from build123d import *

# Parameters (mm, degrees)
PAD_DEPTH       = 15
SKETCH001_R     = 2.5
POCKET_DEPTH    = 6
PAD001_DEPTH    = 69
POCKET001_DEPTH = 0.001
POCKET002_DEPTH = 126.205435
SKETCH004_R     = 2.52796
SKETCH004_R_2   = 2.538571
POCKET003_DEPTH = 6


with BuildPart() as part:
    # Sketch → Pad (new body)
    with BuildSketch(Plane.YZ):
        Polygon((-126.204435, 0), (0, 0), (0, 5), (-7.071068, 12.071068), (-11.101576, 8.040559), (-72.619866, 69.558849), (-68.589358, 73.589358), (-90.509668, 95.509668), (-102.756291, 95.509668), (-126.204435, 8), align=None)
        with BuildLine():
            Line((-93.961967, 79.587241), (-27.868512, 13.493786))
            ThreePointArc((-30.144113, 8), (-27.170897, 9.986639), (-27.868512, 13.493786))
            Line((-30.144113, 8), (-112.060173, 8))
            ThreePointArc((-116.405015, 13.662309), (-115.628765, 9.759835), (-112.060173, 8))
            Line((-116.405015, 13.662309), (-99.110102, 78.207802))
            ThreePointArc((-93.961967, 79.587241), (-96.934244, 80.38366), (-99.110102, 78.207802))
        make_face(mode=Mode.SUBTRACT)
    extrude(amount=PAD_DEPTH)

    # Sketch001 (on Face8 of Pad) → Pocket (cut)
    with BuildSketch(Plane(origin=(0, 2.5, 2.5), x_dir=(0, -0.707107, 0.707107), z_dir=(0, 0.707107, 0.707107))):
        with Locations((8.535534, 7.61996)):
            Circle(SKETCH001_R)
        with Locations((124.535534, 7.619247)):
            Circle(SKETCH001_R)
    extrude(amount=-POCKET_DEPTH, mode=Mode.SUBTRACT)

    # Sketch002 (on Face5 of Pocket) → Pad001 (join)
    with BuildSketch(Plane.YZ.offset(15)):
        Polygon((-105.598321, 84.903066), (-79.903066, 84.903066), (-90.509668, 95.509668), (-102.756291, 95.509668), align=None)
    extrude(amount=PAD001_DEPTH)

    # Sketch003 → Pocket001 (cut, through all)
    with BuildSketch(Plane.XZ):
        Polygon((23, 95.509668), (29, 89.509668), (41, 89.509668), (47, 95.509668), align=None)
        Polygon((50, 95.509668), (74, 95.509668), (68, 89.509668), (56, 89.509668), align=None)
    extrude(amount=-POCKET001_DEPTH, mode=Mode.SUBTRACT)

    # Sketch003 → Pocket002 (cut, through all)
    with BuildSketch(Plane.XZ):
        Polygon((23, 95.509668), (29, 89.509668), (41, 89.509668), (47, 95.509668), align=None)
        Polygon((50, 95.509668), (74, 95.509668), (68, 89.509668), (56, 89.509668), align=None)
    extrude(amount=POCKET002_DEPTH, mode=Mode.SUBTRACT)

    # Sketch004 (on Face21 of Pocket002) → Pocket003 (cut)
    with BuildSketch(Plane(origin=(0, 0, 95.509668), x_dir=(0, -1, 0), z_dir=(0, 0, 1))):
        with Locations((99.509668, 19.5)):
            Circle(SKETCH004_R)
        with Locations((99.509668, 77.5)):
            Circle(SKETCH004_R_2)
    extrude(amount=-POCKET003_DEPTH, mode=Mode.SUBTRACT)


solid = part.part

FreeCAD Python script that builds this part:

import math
import FreeCAD as App
import Part
import Sketcher
from FreeCAD import Vector
Q = App.Units.Quantity


def add_polygon(sketch, points):
    """Adds a closed chain of lines whose ends are joined by coincident constraints."""
    first, n = sketch.GeometryCount, len(points)
    for a, b in zip(points, points[1:] + points[:1]):
        sketch.addGeometry(Part.LineSegment(App.Vector(*a, 0), App.Vector(*b, 0)), False)
    for i in range(n):
        sketch.addConstraint(Sketcher.Constraint("Coincident", first + i, 2, first + (i + 1) % n, 1))

doc = App.newDocument("Part")
body = doc.addObject("PartDesign::Body", "Body")

# Sketch on YZ plane
sketch1 = body.newObject("Sketcher::SketchObject", "Sketch")
sketch1.AttachmentSupport = (doc.getObject("YZ_Plane"), [""])
sketch1.MapMode = "FlatFace"
add_polygon(sketch1, [(-126.204435, 0), (0, 0), (0, 5), (-7.071068, 12.071068), (-11.101576, 8.040559), (-72.619866, 69.558849), (-68.589358, 73.589358), (-90.509668, 95.509668), (-102.756291, 95.509668), (-126.204435, 8)])  # lines 0-9
sketch1.addGeometry(Part.ArcOfCircle(Part.Circle(Vector(-96.137825, 77.411383, 0), Vector(0, 0, 1), 3.077128), math.radians(45.000008), math.radians(165)), False)  # 10
sketch1.addGeometry(Part.LineSegment(Vector(-93.961967, 79.587241, 0), Vector(-27.868512, 13.493786, 0)), False)  # 11
sketch1.addGeometry(Part.ArcOfCircle(Part.Circle(Vector(-30.144112, 11.218185, 0), Vector(0, 0, 1), 3.218185), math.radians(-90.00001), math.radians(45.000004)), False)  # 12
sketch1.addGeometry(Part.LineSegment(Vector(-30.144113, 8, 0), Vector(-112.060173, 8, 0)), False)  # 13
sketch1.addGeometry(Part.ArcOfCircle(Part.Circle(Vector(-112.060173, 12.498112, 0), Vector(0, 0, 1), 4.498112), math.radians(164.999994), math.radians(269.999999)), False)  # 14
sketch1.addGeometry(Part.LineSegment(Vector(-116.405015, 13.662309, 0), Vector(-99.110102, 78.207802, 0)), False)  # 15
sketch1.addConstraint([
    Sketcher.Constraint("Tangent", 10, 1, 11, 1),
    Sketcher.Constraint("Tangent", 11, 2, 12, 2),
    Sketcher.Constraint("Tangent", 12, 1, 13, 1),
    Sketcher.Constraint("Tangent", 13, 2, 14, 2),
    Sketcher.Constraint("Tangent", 14, 1, 15, 1),
    Sketcher.Constraint("Tangent", 15, 2, 10, 2),
    Sketcher.Constraint("Horizontal", 0),
    Sketcher.Constraint("Vertical", 1),
    Sketcher.Constraint("Horizontal", 7),
    Sketcher.Constraint("Vertical", 9),
    Sketcher.Constraint("Horizontal", 13),
    Sketcher.Constraint("Coincident", 0, 2, -1, 1),
    Sketcher.Constraint("Perpendicular", 2, 3),
    Sketcher.Constraint("Perpendicular", 3, 4),
    Sketcher.Constraint("Perpendicular", 4, 5),
    Sketcher.Constraint("Perpendicular", 5, 6),
    Sketcher.Constraint("Parallel", 6, 11),
    Sketcher.Constraint("Parallel", 8, 15),
    Sketcher.Constraint("Horizontal", 8, 2, 12, 1),
    Sketcher.Constraint("Equal", 3, 5),
    Sketcher.Constraint("DistanceY", 1, 1, 1, 2, Q("5 mm")),
    Sketcher.Constraint("DistanceY", 9, 2, 9, 1, Q("8 mm")),
    Sketcher.Constraint("Angle", 2, Q("135 deg")),
    Sketcher.Constraint("Angle", 8, Q("-104.999999 deg")),
    Sketcher.Constraint("Distance", 2, Q("10 mm")),
    Sketcher.Constraint("Distance", 4, Q("87 mm")),
    Sketcher.Constraint("Distance", 6, Q("31 mm")),
    Sketcher.Constraint("Distance", 3, Q("5.7 mm")),
    Sketcher.Constraint("Radius", 14, Q("4.498112 mm")),
    Sketcher.Constraint("Radius", 10, Q("3.077128 mm")),
    Sketcher.Constraint("Radius", 12, Q("3.218185 mm")),
    Sketcher.Constraint("DistanceX", 13, 2, 13, 1, Q("81.91606 mm")),
    Sketcher.Constraint("DistanceX", 15, 2, -1, 1, Q("99.110102 mm")),
    Sketcher.Constraint("DistanceX", 0, 1, 0, 2, Q("126.204435 mm")),
])
pad1 = body.newObject("PartDesign::Pad", "Pad")
pad1.Profile = sketch1
pad1.Length = 15

# Sketch on an angled plane
sketch2 = body.newObject("Sketcher::SketchObject", "Sketch001")
sketch2.Placement = App.Placement(Vector(0, 2.5, 2.5), App.Rotation(Vector(0, -0.707106781, 0.707106781), Vector(0.999999999, 0, 0), Vector(0, 0.707106781, 0.707106781), "ZXY"))
sketch2.addGeometry([
    Part.Circle(Vector(8.535534, 7.61996, 0), Vector(0, 0, 1), 2.5),
    Part.Circle(Vector(124.535534, 7.619247, 0), Vector(0, 0, 1), 2.5),
], False)
sketch2.addConstraint([
    Sketcher.Constraint("Equal", 0, 1),
    Sketcher.Constraint("Diameter", 0, Q("5 mm")),
    Sketcher.Constraint("DistanceX", 0, 3, 1, 3, Q("116 mm")),
    Sketcher.Constraint("DistanceY", -1, 1, 0, 3, Q("7.61996 mm")),
    Sketcher.Constraint("DistanceX", -1, 1, 0, 3, Q("8.535534 mm")),
    Sketcher.Constraint("DistanceY", -1, 1, 1, 3, Q("7.619247 mm")),
])
pocket1 = body.newObject("PartDesign::Pocket", "Pocket")
pocket1.Profile = sketch2
pocket1.Length = 6

# Sketch on YZ plane
sketch3 = body.newObject("Sketcher::SketchObject", "Sketch002")
sketch3.AttachmentSupport = (doc.getObject("YZ_Plane"), [""])
sketch3.MapMode = "FlatFace"
sketch3.AttachmentOffset = App.Placement(Vector(0, 0, 15), App.Rotation())
add_polygon(sketch3, [(-105.598321, 84.903066), (-79.903066, 84.903066), (-90.509668, 95.509668), (-102.756291, 95.509668)])  # lines 0-3
sketch3.addConstraint([
    Sketcher.Constraint("Horizontal", 0),
    Sketcher.Constraint("Horizontal", 2),
    Sketcher.Constraint("Angle", 1, Q("135 deg")),
    Sketcher.Constraint("Angle", 3, Q("-104.999998 deg")),
    Sketcher.Constraint("Distance", 1, Q("15 mm")),
    Sketcher.Constraint("DistanceX", 0, 1, 0, 2, Q("25.695255 mm")),
    Sketcher.Constraint("DistanceX", 1, 2, -1, 1, Q("90.509668 mm")),
    Sketcher.Constraint("DistanceY", -1, 1, 1, 2, Q("95.509668 mm")),
])
pad2 = body.newObject("PartDesign::Pad", "Pad001")
pad2.Profile = sketch3
pad2.Length = 69

# Sketch on XZ plane
sketch4 = body.newObject("Sketcher::SketchObject", "Sketch003")
sketch4.AttachmentSupport = (doc.getObject("XZ_Plane"), [""])
sketch4.MapMode = "FlatFace"
add_polygon(sketch4, [(23, 95.509668), (29, 89.509668), (41, 89.509668), (47, 95.509668)])  # lines 0-3
add_polygon(sketch4, [(74, 95.509668), (50, 95.509668), (56, 89.509668), (68, 89.509668)])  # lines 4-7
sketch4.addConstraint([
    Sketcher.Constraint("Horizontal", 1),
    Sketcher.Constraint("Horizontal", 3),
    Sketcher.Constraint("Horizontal", 4),
    Sketcher.Constraint("Horizontal", 6),
    Sketcher.Constraint("Perpendicular", 0, 2),
    Sketcher.Constraint("Perpendicular", 2, 5),
    Sketcher.Constraint("Perpendicular", 5, 7),
    Sketcher.Constraint("Horizontal", 3, 2, 4, 2),
    Sketcher.Constraint("Horizontal", 1, 2, 5, 2),
    Sketcher.Constraint("Equal", 3, 4),
    Sketcher.Constraint("Equal", 0, 2),
    Sketcher.Constraint("DistanceX", 1, 1, 1, 2, Q("12 mm")),
    Sketcher.Constraint("DistanceX", 3, 2, 3, 1, Q("24 mm")),
    Sketcher.Constraint("DistanceX", -1, 1, 0, 2, Q("29 mm")),
    Sketcher.Constraint("DistanceX", -1, 1, 4, 2, Q("50 mm")),
    Sketcher.Constraint("DistanceY", -1, 1, 0, 2, Q("89.509668 mm")),
])
pocket2 = body.newObject("PartDesign::Pocket", "Pocket001")
pocket2.Profile = sketch4
pocket2.Type = "ThroughAll"

# Sketch on XZ plane
sketch5 = body.newObject("Sketcher::SketchObject", "Sketch004")
sketch5.AttachmentSupport = (doc.getObject("XZ_Plane"), [""])
sketch5.MapMode = "FlatFace"
add_polygon(sketch5, [(23, 95.509668), (29, 89.509668), (41, 89.509668), (47, 95.509668)])  # lines 0-3
add_polygon(sketch5, [(74, 95.509668), (50, 95.509668), (56, 89.509668), (68, 89.509668)])  # lines 4-7
sketch5.addConstraint([
    Sketcher.Constraint("Horizontal", 1),
    Sketcher.Constraint("Horizontal", 3),
    Sketcher.Constraint("Horizontal", 4),
    Sketcher.Constraint("Horizontal", 6),
    Sketcher.Constraint("Perpendicular", 0, 2),
    Sketcher.Constraint("Perpendicular", 2, 5),
    Sketcher.Constraint("Perpendicular", 5, 7),
    Sketcher.Constraint("Horizontal", 3, 2, 4, 2),
    Sketcher.Constraint("Horizontal", 1, 2, 5, 2),
    Sketcher.Constraint("Equal", 3, 4),
    Sketcher.Constraint("Equal", 0, 2),
    Sketcher.Constraint("DistanceX", 1, 1, 1, 2, Q("12 mm")),
    Sketcher.Constraint("DistanceX", 3, 2, 3, 1, Q("24 mm")),
    Sketcher.Constraint("DistanceX", -1, 1, 0, 2, Q("29 mm")),
    Sketcher.Constraint("DistanceX", -1, 1, 4, 2, Q("50 mm")),
    Sketcher.Constraint("DistanceY", -1, 1, 0, 2, Q("89.509668 mm")),
])
pocket3 = body.newObject("PartDesign::Pocket", "Pocket002")
pocket3.Profile = sketch5
pocket3.Type = "ThroughAll"
pocket3.Reversed = True

# Sketch on XY plane
sketch6 = body.newObject("Sketcher::SketchObject", "Sketch005")
sketch6.AttachmentSupport = (doc.getObject("XY_Plane"), [""])
sketch6.MapMode = "FlatFace"
sketch6.AttachmentOffset = App.Placement(Vector(0, 0, 95.509668), App.Rotation())
sketch6.addGeometry([
    Part.Circle(Vector(19.5, -99.509668, 0), Vector(0, 0, 1), 2.52796),
    Part.Circle(Vector(77.5, -99.509668, 0), Vector(0, 0, 1), 2.538571),
], False)
sketch6.addConstraint([
    Sketcher.Constraint("Horizontal", 0, 3, 1, 3),
    Sketcher.Constraint("DistanceX", 0, 3, 1, 3, Q("58 mm")),
    Sketcher.Constraint("DistanceX", -1, 1, 0, 3, Q("19.5 mm")),
    Sketcher.Constraint("Diameter", 0, Q("5.05592 mm")),
    Sketcher.Constraint("Diameter", 1, Q("5.077142 mm")),
    Sketcher.Constraint("DistanceY", 0, 3, -1, 1, Q("99.509668 mm")),
])
pocket4 = body.newObject("PartDesign::Pocket", "Pocket003")
pocket4.Profile = sketch6
pocket4.Length = 6

doc.recompute()
